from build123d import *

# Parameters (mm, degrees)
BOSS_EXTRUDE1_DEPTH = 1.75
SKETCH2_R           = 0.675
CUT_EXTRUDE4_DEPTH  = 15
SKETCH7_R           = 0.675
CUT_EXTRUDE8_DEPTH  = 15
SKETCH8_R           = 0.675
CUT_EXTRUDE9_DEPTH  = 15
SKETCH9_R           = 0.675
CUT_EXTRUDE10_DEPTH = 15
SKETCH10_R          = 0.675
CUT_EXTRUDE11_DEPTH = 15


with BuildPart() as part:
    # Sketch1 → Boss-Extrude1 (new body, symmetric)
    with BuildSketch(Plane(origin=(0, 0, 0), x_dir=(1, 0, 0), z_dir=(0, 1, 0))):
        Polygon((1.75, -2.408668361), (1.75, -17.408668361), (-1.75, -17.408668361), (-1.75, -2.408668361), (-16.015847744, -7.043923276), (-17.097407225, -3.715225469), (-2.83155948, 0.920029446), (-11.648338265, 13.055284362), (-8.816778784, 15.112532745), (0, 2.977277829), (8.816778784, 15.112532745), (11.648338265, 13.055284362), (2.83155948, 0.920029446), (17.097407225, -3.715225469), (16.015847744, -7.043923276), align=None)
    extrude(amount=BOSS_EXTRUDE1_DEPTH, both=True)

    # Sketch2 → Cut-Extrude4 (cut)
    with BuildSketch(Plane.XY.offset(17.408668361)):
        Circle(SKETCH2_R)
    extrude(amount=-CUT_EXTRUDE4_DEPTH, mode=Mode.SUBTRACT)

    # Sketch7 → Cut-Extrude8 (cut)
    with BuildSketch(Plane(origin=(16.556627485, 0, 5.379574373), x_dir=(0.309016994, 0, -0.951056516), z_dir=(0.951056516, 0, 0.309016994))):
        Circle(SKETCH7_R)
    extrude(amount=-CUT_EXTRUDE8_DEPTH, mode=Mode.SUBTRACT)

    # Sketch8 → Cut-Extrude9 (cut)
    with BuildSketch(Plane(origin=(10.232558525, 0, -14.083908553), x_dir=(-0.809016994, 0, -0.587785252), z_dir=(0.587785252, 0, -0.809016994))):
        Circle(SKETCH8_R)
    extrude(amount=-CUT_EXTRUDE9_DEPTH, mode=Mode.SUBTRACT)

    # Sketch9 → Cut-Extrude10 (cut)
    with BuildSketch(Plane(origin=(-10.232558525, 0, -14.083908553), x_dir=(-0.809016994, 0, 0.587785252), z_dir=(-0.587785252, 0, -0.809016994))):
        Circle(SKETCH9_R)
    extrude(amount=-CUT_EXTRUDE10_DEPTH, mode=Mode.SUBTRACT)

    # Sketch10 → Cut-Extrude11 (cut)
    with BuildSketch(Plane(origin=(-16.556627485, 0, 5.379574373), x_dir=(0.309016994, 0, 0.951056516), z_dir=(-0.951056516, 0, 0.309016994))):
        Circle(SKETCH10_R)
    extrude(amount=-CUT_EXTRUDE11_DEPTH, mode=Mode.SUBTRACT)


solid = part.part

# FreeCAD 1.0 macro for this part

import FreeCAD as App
import Part
import Sketcher
Q = App.Units.Quantity

doc = App.newDocument("Part")
body = doc.addObject("PartDesign::Body", "Body")

# Sketch on XZ plane
sketch1 = body.newObject("Sketcher::SketchObject", "Sketch")
sketch1.AttachmentSupport = (doc.getObject("XZ_Plane"), [""])
sketch1.MapMode = "FlatFace"
sketch1.addGeometry(Part.LineSegment(App.Vector(1.8, 17.4, 0), App.Vector(1.8, 2.4, 0)), False)
sketch1.addGeometry(Part.LineSegment(App.Vector(1.8, 2.4, 0), App.Vector(16, 7, 0)), False)
sketch1.addGeometry(Part.LineSegment(App.Vector(16, 7, 0), App.Vector(17.1, 3.7, 0)), False)
sketch1.addGeometry(Part.LineSegment(App.Vector(17.1, 3.7, 0), App.Vector(2.8, -0.9, 0)), False)
sketch1.addGeometry(Part.LineSegment(App.Vector(2.8, -0.9, 0), App.Vector(11.6, -13.1, 0)), False)
sketch1.addGeometry(Part.LineSegment(App.Vector(11.6, -13.1, 0), App.Vector(8.8, -15.1, 0)), False)
sketch1.addGeometry(Part.LineSegment(App.Vector(8.8, -15.1, 0), App.Vector(0, -3, 0)), False)
sketch1.addGeometry(Part.LineSegment(App.Vector(0, -3, 0), App.Vector(-8.8, -15.1, 0)), False)
sketch1.addGeometry(Part.LineSegment(App.Vector(-8.8, -15.1, 0), App.Vector(-11.6, -13.1, 0)), False)
sketch1.addGeometry(Part.LineSegment(App.Vector(-11.6, -13.1, 0), App.Vector(-2.8, -0.9, 0)), False)
sketch1.addGeometry(Part.LineSegment(App.Vector(-2.8, -0.9, 0), App.Vector(-17.1, 3.7, 0)), False)
sketch1.addGeometry(Part.LineSegment(App.Vector(-17.1, 3.7, 0), App.Vector(-16, 7, 0)), False)
sketch1.addGeometry(Part.LineSegment(App.Vector(-16, 7, 0), App.Vector(-1.8, 2.4, 0)), False)
sketch1.addGeometry(Part.LineSegment(App.Vector(-1.8, 2.4, 0), App.Vector(-1.8, 17.4, 0)), False)
sketch1.addGeometry(Part.LineSegment(App.Vector(-1.8, 17.4, 0), App.Vector(1.8, 17.4, 0)), False)
sketch1.addConstraint(Sketcher.Constraint("Coincident", 0, 2, 1, 1))
sketch1.addConstraint(Sketcher.Constraint("Coincident", 1, 2, 2, 1))
sketch1.addConstraint(Sketcher.Constraint("Coincident", 2, 2, 3, 1))
sketch1.addConstraint(Sketcher.Constraint("Coincident", 3, 2, 4, 1))
sketch1.addConstraint(Sketcher.Constraint("Coincident", 4, 2, 5, 1))
sketch1.addConstraint(Sketcher.Constraint("Coincident", 5, 2, 6, 1))
sketch1.addConstraint(Sketcher.Constraint("Coincident", 6, 2, 7, 1))
sketch1.addConstraint(Sketcher.Constraint("Coincident", 7, 2, 8, 1))
sketch1.addConstraint(Sketcher.Constraint("Coincident", 8, 2, 9, 1))
sketch1.addConstraint(Sketcher.Constraint("Coincident", 9, 2, 10, 1))
sketch1.addConstraint(Sketcher.Constraint("Coincident", 10, 2, 11, 1))
sketch1.addConstraint(Sketcher.Constraint("Coincident", 11, 2, 12, 1))
sketch1.addConstraint(Sketcher.Constraint("Coincident", 12, 2, 13, 1))
sketch1.addConstraint(Sketcher.Constraint("Coincident", 13, 2, 14, 1))
sketch1.addConstraint(Sketcher.Constraint("Coincident", 14, 2, 0, 1))
sketch1.addConstraint(Sketcher.Constraint("Vertical", 0))
sketch1.addConstraint(Sketcher.Constraint("Vertical", 13))
sketch1.addConstraint(Sketcher.Constraint("Horizontal", 14))
sketch1.addConstraint(Sketcher.Constraint("Symmetric", 5, 2, 7, 2, -2))
sketch1.addConstraint(Sketcher.Constraint("Symmetric", 4, 2, 8, 2, -2))
sketch1.addConstraint(Sketcher.Constraint("Symmetric", 3, 2, 9, 2, -2))
sketch1.addConstraint(Sketcher.Constraint("Symmetric", 2, 2, 10, 2, -2))
sketch1.addConstraint(Sketcher.Constraint("Symmetric", 1, 2, 11, 2, -2))
sketch1.addConstraint(Sketcher.Constraint("Symmetric", 0, 2, 12, 2, -2))
sketch1.addConstraint(Sketcher.Constraint("PointOnObject", 6, 2, -2))
sketch1.addConstraint(Sketcher.Constraint("Perpendicular", 1, 2))
sketch1.addConstraint(Sketcher.Constraint("Perpendicular", 2, 3))
sketch1.addConstraint(Sketcher.Constraint("Perpendicular", 4, 5))
sketch1.addConstraint(Sketcher.Constraint("Perpendicular", 5, 6))
sketch1.addConstraint(Sketcher.Constraint("Equal", 1, 3))
sketch1.addConstraint(Sketcher.Constraint("Equal", 3, 4))
sketch1.addConstraint(Sketcher.Constraint("Equal", 2, 5))
sketch1.addConstraint(Sketcher.Constraint("Equal", 4, 6))
sketch1.addConstraint(Sketcher.Constraint("DistanceY", 0, 2, 0, 1, 15.0))
sketch1.addConstraint(Sketcher.Constraint("Angle", 1, Q("18 deg")))
sketch1.addConstraint(Sketcher.Constraint("Angle", 4, Q("-54 deg")))
sketch1.addConstraint(Sketcher.Constraint("Distance", 1, 15.0))
sketch1.addConstraint(Sketcher.Constraint("DistanceX", 14, 1, 14, 2, 3.5))
sketch1.addConstraint(Sketcher.Constraint("DistanceY", -1, 1, 0, 2, 2.408668))
pad1 = body.newObject("PartDesign::Pad", "Pad")
pad1.Profile = sketch1
pad1.Length = 3.5
pad1.Midplane = True

# Sketch on XY plane
sketch2 = body.newObject("Sketcher::SketchObject", "Sketch001")
sketch2.AttachmentSupport = (doc.getObject("XY_Plane"), [""])
sketch2.MapMode = "FlatFace"
sketch2.AttachmentOffset = App.Placement(App.Vector(0, 0, 17.408668), App.Rotation())
sketch2.addGeometry(Part.Circle(App.Vector(0, 0, 0), App.Vector(0, 0, 1), 0.7), False)
sketch2.addConstraint(Sketcher.Constraint("Coincident", 0, 3, -1, 1))
sketch2.addConstraint(Sketcher.Constraint("Diameter", 0, 1.35))
pocket1 = body.newObject("PartDesign::Pocket", "Pocket")
pocket1.Profile = sketch2
pocket1.Length = 15

# Sketch on an angled plane
sketch3 = body.newObject("Sketcher::SketchObject", "Sketch002")
sketch3.Placement = App.Placement(App.Vector(16.556627, 0, 5.379574), App.Rotation(App.Vector(0.309016994, 0, -0.951056516), App.Vector(0, 0.999999999, 0), App.Vector(0.951056516, 0, 0.309016994), "ZXY"))
sketch3.addGeometry(Part.Circle(App.Vector(0, 0, 0), App.Vector(0, 0, 1), 0.7), False)
sketch3.addConstraint(Sketcher.Constraint("Coincident", 0, 3, -1, 1))
sketch3.addConstraint(Sketcher.Constraint("Diameter", 0, 1.35))
pocket2 = body.newObject("PartDesign::Pocket", "Pocket001")
pocket2.Profile = sketch3
pocket2.Length = 15

# Sketch on an angled plane
sketch4 = body.newObject("Sketcher::SketchObject", "Sketch003")
sketch4.Placement = App.Placement(App.Vector(10.232559, 0, -14.083909), App.Rotation(App.Vector(-0.809016994, 0, -0.587785252), App.Vector(0, 0.999999999, 0), App.Vector(0.587785252, 0, -0.809016994), "ZXY"))
sketch4.addGeometry(Part.Circle(App.Vector(0, 0, 0), App.Vector(0, 0, 1), 0.7), False)
sketch4.addConstraint(Sketcher.Constraint("Coincident", 0, 3, -1, 1))
sketch4.addConstraint(Sketcher.Constraint("Diameter", 0, 1.35))
pocket3 = body.newObject("PartDesign::Pocket", "Pocket002")
pocket3.Profile = sketch4
pocket3.Length = 15

# Sketch on an angled plane
sketch5 = body.newObject("Sketcher::SketchObject", "Sketch004")
sketch5.Placement = App.Placement(App.Vector(-10.232559, 0, -14.083909), App.Rotation(App.Vector(-0.809016994, 0, 0.587785252), App.Vector(0, 0.999999999, 0), App.Vector(-0.587785252, 0, -0.809016994), "ZXY"))
sketch5.addGeometry(Part.Circle(App.Vector(0, 0, 0), App.Vector(0, 0, 1), 0.7), False)
sketch5.addConstraint(Sketcher.Constraint("Coincident", 0, 3, -1, 1))
sketch5.addConstraint(Sketcher.Constraint("Diameter", 0, 1.35))
pocket4 = body.newObject("PartDesign::Pocket", "Pocket003")
pocket4.Profile = sketch5
pocket4.Length = 15

# Sketch on an angled plane
sketch6 = body.newObject("Sketcher::SketchObject", "Sketch005")
sketch6.Placement = App.Placement(App.Vector(-16.556627, 0, 5.379574), App.Rotation(App.Vector(0.309016994, 0, 0.951056516), App.Vector(0, 0.999999999, 0), App.Vector(-0.951056516, 0, 0.309016994), "ZXY"))
sketch6.addGeometry(Part.Circle(App.Vector(0, 0, 0), App.Vector(0, 0, 1), 0.7), False)
sketch6.addConstraint(Sketcher.Constraint("Coincident", 0, 3, -1, 1))
sketch6.addConstraint(Sketcher.Constraint("Diameter", 0, 1.35))
pocket5 = body.newObject("PartDesign::Pocket", "Pocket004")
pocket5.Profile = sketch6
pocket5.Length = 15

doc.recompute()
